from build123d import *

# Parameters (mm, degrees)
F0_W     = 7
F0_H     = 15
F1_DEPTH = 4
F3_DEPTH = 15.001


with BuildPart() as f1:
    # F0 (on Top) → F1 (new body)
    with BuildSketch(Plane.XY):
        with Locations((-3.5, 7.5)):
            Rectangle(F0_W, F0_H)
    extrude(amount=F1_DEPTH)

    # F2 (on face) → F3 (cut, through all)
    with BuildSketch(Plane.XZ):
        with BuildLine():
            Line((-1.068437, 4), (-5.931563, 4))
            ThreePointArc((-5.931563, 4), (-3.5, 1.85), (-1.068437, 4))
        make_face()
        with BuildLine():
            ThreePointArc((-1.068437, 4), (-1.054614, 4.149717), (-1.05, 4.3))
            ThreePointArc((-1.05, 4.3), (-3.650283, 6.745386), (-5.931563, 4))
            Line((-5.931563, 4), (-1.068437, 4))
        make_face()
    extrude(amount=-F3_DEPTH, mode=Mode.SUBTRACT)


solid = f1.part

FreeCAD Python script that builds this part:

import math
import FreeCAD as App
import Part
import Sketcher
from FreeCAD import Vector
Q = App.Units.Quantity


def add_polygon(sketch, points):
    """Adds a closed chain of lines whose ends are joined by coincident constraints."""
    first, n = sketch.GeometryCount, len(points)
    for a, b in zip(points, points[1:] + points[:1]):
        sketch.addGeometry(Part.LineSegment(App.Vector(*a, 0), App.Vector(*b, 0)), False)
    for i in range(n):
        sketch.addConstraint(Sketcher.Constraint("Coincident", first + i, 2, first + (i + 1) % n, 1))

doc = App.newDocument("Part")
body = doc.addObject("PartDesign::Body", "Body")

sketch1 = doc.addObject("Sketcher::SketchObject", "Sketch")
body.addObject(sketch1)
sketch1.AttachmentSupport = (doc.XY_Plane, [""])
sketch1.MapMode = "FlatFace"
add_polygon(sketch1, [(-7, 15), (-7, 0), (0, 0), (0, 15)])
sketch1.addConstraint(Sketcher.Constraint("Vertical", 0))
sketch1.addConstraint(Sketcher.Constraint("Horizontal", 1))
sketch1.addConstraint(Sketcher.Constraint("Vertical", 2))
sketch1.addConstraint(Sketcher.Constraint("Horizontal", 3))
sketch1.addConstraint(Sketcher.Constraint("Coincident", 1, 2, -1, 1))
sketch1.addConstraint(Sketcher.Constraint("DistanceX", 1, 1, 1, 2, Q("7 mm")))
sketch1.addConstraint(Sketcher.Constraint("DistanceY", 0, 2, 0, 1, Q("15 mm")))
pad1 = doc.addObject("PartDesign::Pad", "Pad")
body.addObject(pad1)
pad1.Profile = sketch1
pad1.Length = 4

sketch2 = doc.addObject("Sketcher::SketchObject", "Sketch001")
body.addObject(sketch2)
sketch2.AttachmentSupport = (doc.XZ_Plane, [""])
sketch2.MapMode = "FlatFace"
sketch2.addGeometry(Part.ArcOfCircle(Part.Circle(Vector(-3.5, 4.3, 0), Vector(0, 0, 1), 2.45), math.radians(-173), math.radians(-7)), False)
sketch2.addGeometry(Part.ArcOfCircle(Part.Circle(Vector(-3.5, 4.3, 0), Vector(0, 0, 1), 2.45), math.radians(-7.03), math.radians(0)), False)
sketch2.addGeometry(Part.ArcOfCircle(Part.Circle(Vector(-3.5, 4.3, 0), Vector(0, 0, 1), 2.45), math.radians(0), math.radians(187)), False)
sketch2.addConstraint(Sketcher.Constraint("Coincident", 0, 2, 1, 1))
sketch2.addConstraint(Sketcher.Constraint("Coincident", 1, 2, 2, 1))
sketch2.addConstraint(Sketcher.Constraint("Tangent", 2, 2, 0, 1))
sketch2.addConstraint(Sketcher.Constraint("Equal", 0, 2))
sketch2.addConstraint(Sketcher.Constraint("Horizontal", 2, 3, 1, 2))
sketch2.addConstraint(Sketcher.Constraint("Horizontal", 0, 2, 2, 2))
sketch2.addConstraint(Sketcher.Constraint("Radius", 0, Q("2.45 mm")))
sketch2.addConstraint(Sketcher.Constraint("DistanceY", -1, 1, 0, 2, Q("4 mm")))
sketch2.addConstraint(Sketcher.Constraint("DistanceX", 0, 3, -1, 1, Q("3.5 mm")))
sketch2.addConstraint(Sketcher.Constraint("DistanceY", -1, 1, 0, 3, Q("4.3 mm")))
sketch2.addConstraint(Sketcher.Constraint("Radius", 1, Q("2.450178 mm")))
pocket1 = doc.addObject("PartDesign::Pocket", "Pocket")
body.addObject(pocket1)
pocket1.Profile = sketch2
pocket1.Type = "ThroughAll"

doc.recompute()
